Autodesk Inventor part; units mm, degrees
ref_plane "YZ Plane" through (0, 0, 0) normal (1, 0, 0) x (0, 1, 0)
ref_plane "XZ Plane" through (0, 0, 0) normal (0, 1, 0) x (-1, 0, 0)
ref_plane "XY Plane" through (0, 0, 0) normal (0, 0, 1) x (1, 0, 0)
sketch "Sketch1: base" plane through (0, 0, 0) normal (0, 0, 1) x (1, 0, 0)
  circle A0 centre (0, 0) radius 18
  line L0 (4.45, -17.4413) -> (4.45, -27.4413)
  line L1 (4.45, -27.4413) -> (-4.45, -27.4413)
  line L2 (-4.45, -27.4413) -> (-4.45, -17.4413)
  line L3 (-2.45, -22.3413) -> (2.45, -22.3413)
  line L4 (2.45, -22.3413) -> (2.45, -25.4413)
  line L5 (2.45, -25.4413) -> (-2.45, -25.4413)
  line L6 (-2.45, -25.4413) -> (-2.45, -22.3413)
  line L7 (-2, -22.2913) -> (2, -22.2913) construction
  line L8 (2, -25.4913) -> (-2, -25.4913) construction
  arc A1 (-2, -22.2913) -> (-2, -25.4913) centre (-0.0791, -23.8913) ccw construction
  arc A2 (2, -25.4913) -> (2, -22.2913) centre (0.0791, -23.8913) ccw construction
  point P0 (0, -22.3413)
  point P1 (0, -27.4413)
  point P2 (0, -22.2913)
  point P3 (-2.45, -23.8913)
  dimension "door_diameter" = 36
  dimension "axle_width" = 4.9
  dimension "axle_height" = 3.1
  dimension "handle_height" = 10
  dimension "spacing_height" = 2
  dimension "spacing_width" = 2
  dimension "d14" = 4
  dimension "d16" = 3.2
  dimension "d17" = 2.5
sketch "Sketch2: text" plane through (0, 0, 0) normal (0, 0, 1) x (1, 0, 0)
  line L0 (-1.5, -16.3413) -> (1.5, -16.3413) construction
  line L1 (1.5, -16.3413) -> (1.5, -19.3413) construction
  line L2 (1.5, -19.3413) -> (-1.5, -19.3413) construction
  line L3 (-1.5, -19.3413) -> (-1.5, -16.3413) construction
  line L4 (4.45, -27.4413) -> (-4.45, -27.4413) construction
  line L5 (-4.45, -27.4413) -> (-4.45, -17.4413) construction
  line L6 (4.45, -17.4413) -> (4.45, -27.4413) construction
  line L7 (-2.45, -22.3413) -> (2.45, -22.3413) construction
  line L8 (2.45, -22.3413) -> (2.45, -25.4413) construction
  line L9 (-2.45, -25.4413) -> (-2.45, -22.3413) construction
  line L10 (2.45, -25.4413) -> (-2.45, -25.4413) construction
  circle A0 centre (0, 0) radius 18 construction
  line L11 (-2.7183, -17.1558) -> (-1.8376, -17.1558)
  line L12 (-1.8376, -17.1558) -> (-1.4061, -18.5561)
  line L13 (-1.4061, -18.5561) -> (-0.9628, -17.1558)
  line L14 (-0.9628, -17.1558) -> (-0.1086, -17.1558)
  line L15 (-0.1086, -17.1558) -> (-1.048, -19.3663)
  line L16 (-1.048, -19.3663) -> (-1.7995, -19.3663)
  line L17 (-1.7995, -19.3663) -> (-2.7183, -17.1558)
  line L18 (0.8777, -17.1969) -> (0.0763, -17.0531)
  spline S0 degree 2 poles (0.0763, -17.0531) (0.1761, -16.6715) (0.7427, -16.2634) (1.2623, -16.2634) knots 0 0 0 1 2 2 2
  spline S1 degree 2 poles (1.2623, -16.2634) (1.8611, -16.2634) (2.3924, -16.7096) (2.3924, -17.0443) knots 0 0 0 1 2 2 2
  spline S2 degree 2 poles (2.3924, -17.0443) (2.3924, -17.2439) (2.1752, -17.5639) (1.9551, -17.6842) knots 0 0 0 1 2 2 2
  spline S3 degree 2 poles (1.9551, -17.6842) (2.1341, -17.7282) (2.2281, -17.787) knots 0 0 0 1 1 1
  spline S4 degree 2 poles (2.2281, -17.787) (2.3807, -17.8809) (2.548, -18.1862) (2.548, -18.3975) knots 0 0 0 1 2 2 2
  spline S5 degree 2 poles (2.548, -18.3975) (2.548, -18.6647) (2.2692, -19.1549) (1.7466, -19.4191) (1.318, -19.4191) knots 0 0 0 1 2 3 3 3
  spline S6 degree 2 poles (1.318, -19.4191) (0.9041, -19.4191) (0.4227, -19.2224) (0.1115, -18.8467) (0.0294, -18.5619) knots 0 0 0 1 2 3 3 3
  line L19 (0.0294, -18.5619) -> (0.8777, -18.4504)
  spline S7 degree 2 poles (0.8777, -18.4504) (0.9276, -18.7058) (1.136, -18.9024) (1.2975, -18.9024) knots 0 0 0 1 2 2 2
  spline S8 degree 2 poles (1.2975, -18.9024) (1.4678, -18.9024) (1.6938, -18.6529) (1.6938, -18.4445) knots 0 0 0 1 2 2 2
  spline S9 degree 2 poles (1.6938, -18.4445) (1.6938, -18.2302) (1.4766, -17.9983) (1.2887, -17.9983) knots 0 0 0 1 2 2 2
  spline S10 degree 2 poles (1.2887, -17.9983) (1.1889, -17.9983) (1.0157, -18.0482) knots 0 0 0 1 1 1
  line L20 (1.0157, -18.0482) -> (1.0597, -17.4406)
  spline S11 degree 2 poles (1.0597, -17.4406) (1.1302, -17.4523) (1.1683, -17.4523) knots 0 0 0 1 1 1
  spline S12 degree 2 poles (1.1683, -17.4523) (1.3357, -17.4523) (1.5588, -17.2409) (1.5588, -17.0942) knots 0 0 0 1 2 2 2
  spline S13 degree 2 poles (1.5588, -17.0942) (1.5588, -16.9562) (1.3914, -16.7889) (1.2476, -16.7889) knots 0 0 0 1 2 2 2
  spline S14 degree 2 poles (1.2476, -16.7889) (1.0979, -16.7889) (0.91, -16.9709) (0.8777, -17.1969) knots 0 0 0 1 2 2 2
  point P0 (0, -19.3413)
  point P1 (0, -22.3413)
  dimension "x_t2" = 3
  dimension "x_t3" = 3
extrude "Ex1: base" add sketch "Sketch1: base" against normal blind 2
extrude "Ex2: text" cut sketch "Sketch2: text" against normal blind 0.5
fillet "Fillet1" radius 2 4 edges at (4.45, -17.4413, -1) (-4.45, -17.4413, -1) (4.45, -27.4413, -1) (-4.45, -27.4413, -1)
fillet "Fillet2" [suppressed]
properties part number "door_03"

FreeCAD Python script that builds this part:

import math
import FreeCAD as App
import Part
import Sketcher

V = App.Vector
Q = App.Units.Quantity


def edges_at(feature, points):
    """Names of the edges that pass closest to the given points."""
    edges = feature.Shape.Edges
    near = lambda p: min(range(len(edges)), key=lambda i: edges[i].distToShape(Part.Vertex(*p))[0])
    return sorted({f"Edge{near(p) + 1}" for p in points})


def add_polygon(sketch, points):
    """Adds a closed chain of lines whose ends are joined by coincident constraints."""
    first, n = sketch.GeometryCount, len(points)
    for a, b in zip(points, points[1:] + points[:1]):
        sketch.addGeometry(Part.LineSegment(App.Vector(*a, 0), App.Vector(*b, 0)), False)
    for i in range(n):
        sketch.addConstraint(Sketcher.Constraint("Coincident", first + i, 2, first + (i + 1) % n, 1))

doc = App.newDocument("Part")
body = doc.addObject("PartDesign::Body", "Body")

# Sketch on XY plane
sketch1 = body.newObject("Sketcher::SketchObject", "Sketch")
sketch1.AttachmentSupport = (doc.getObject("XY_Plane"), [""])
sketch1.MapMode = "FlatFace"
sketch1.addGeometry(Part.ArcOfCircle(Part.Circle(V(0, 0, 0), V(0, 0, 1), 18), math.radians(-76), math.radians(256)), False)  # 0
sketch1.addGeometry(Part.LineSegment(V(-4.5, -17.4, 0), V(-4.5, -27.4, 0)), False)  # 1
sketch1.addGeometry(Part.LineSegment(V(-4.5, -27.4, 0), V(4.5, -27.4, 0)), False)  # 2
sketch1.addGeometry(Part.LineSegment(V(4.5, -27.4, 0), V(4.5, -17.4, 0)), False)  # 3
add_polygon(sketch1, [(-2.5, -22.3), (2.5, -22.3), (2.5, -25.4), (-2.5, -25.4)])  # lines 4-7
sketch1.addConstraint([
    Sketcher.Constraint("Coincident", 0, 2, 1, 1),
    Sketcher.Constraint("Coincident", 1, 2, 2, 1),
    Sketcher.Constraint("Coincident", 2, 2, 3, 1),
    Sketcher.Constraint("Coincident", 3, 2, 0, 1),
    Sketcher.Constraint("Vertical", 1),
    Sketcher.Constraint("Horizontal", 2),
    Sketcher.Constraint("Vertical", 3),
    Sketcher.Constraint("Horizontal", 4),
    Sketcher.Constraint("Vertical", 5),
    Sketcher.Constraint("Horizontal", 6),
    Sketcher.Constraint("Vertical", 7),
    Sketcher.Constraint("Coincident", 0, 3, -1, 1),
    Sketcher.Constraint("Horizontal", 0, 2, 3, 2),
    Sketcher.Constraint("Radius", 0, 18.0),
    Sketcher.Constraint("DistanceY", 1, 2, 1, 1, 10.0),
    Sketcher.Constraint("DistanceX", 4, 1, 4, 2, 4.9),
    Sketcher.Constraint("DistanceY", 5, 2, 5, 1, 3.1),
    Sketcher.Constraint("DistanceX", 4, 2, 3, 2, 2.0),
    Sketcher.Constraint("DistanceY", 2, 2, 5, 2, 2.0),
    Sketcher.Constraint("DistanceX", 1, 2, 6, 2, 2.0),
])
pad1 = body.newObject("PartDesign::Pad", "Pad")
pad1.Profile = sketch1
pad1.Length = 2
pad1.Reversed = True

# Sketch on XY plane
sketch2 = body.newObject("Sketcher::SketchObject", "Sketch001")
sketch2.AttachmentSupport = (doc.getObject("XY_Plane"), [""])
sketch2.MapMode = "FlatFace"
add_polygon(sketch2, [(-1.8376, -17.1558), (-2.7183, -17.1558), (-1.7995, -19.3663), (-1.048, -19.3663), (-0.1086, -17.1558), (-0.9628, -17.1558), (-1.4061, -18.5561)])  # lines 0-6
sketch2.addGeometry(Part.LineSegment(V(0.0763, -17.0531, 0), V(0.8777, -17.1969, 0)), False)  # 7
sketch2.addGeometry(Part.BSplineCurve([V(1.2476, -16.7889, 0), V(1.0979, -16.7889, 0), V(0.91, -16.9709, 0), V(0.8777, -17.1969, 0)], [3, 1, 3], [0, 1, 2], False, 2, [1, 1, 1, 1], False), False)  # 8
sketch2.addGeometry(Part.BSplineCurve([V(1.5588, -17.0942, 0), V(1.5588, -16.9562, 0), V(1.3914, -16.7889, 0), V(1.2476, -16.7889, 0)], [3, 1, 3], [0, 1, 2], False, 2, [1, 1, 1, 1], False), False)  # 9
sketch2.addGeometry(Part.BSplineCurve([V(1.1683, -17.4523, 0), V(1.3357, -17.4523, 0), V(1.5588, -17.2409, 0), V(1.5588, -17.0942, 0)], [3, 1, 3], [0, 1, 2], False, 2, [1, 1, 1, 1], False), False)  # 10
sketch2.addGeometry(Part.BSplineCurve([V(1.0597, -17.4406, 0), V(1.1302, -17.4523, 0), V(1.1683, -17.4523, 0)], [3, 3], [0, 1], False, 2, [1, 1, 1], False), False)  # 11
sketch2.addGeometry(Part.LineSegment(V(1.0597, -17.4406, 0), V(1.0157, -18.0482, 0)), False)  # 12
sketch2.addGeometry(Part.BSplineCurve([V(1.2887, -17.9983, 0), V(1.1889, -17.9983, 0), V(1.0157, -18.0482, 0)], [3, 3], [0, 1], False, 2, [1, 1, 1], False), False)  # 13
sketch2.addGeometry(Part.BSplineCurve([V(1.6938, -18.4445, 0), V(1.6938, -18.2302, 0), V(1.4766, -17.9983, 0), V(1.2887, -17.9983, 0)], [3, 1, 3], [0, 1, 2], False, 2, [1, 1, 1, 1], False), False)  # 14
sketch2.addGeometry(Part.BSplineCurve([V(1.2975, -18.9024, 0), V(1.4678, -18.9024, 0), V(1.6938, -18.6529, 0), V(1.6938, -18.4445, 0)], [3, 1, 3], [0, 1, 2], False, 2, [1, 1, 1, 1], False), False)  # 15
sketch2.addGeometry(Part.BSplineCurve([V(0.8777, -18.4504, 0), V(0.9276, -18.7058, 0), V(1.136, -18.9024, 0), V(1.2975, -18.9024, 0)], [3, 1, 3], [0, 1, 2], False, 2, [1, 1, 1, 1], False), False)  # 16
sketch2.addGeometry(Part.LineSegment(V(0.8777, -18.4504, 0), V(0.0294, -18.5619, 0)), False)  # 17
sketch2.addGeometry(Part.BSplineCurve([V(1.318, -19.4191, 0), V(0.9041, -19.4191, 0), V(0.4227, -19.2224, 0), V(0.1115, -18.8467, 0), V(0.0294, -18.5619, 0)], [3, 1, 1, 3], [0, 1, 2, 3], False, 2, [1, 1, 1, 1, 1], False), False)  # 18
sketch2.addGeometry(Part.BSplineCurve([V(2.548, -18.3975, 0), V(2.548, -18.6647, 0), V(2.2692, -19.1549, 0), V(1.7466, -19.4191, 0), V(1.318, -19.4191, 0)], [3, 1, 1, 3], [0, 1, 2, 3], False, 2, [1, 1, 1, 1, 1], False), False)  # 19
sketch2.addGeometry(Part.BSplineCurve([V(2.2281, -17.787, 0), V(2.3807, -17.8809, 0), V(2.548, -18.1862, 0), V(2.548, -18.3975, 0)], [3, 1, 3], [0, 1, 2], False, 2, [1, 1, 1, 1], False), False)  # 20
sketch2.addGeometry(Part.BSplineCurve([V(1.9551, -17.6842, 0), V(2.1341, -17.7282, 0), V(2.2281, -17.787, 0)], [3, 3], [0, 1], False, 2, [1, 1, 1], False), False)  # 21
sketch2.addGeometry(Part.BSplineCurve([V(2.3924, -17.0443, 0), V(2.3924, -17.2439, 0), V(2.1752, -17.5639, 0), V(1.9551, -17.6842, 0)], [3, 1, 3], [0, 1, 2], False, 2, [1, 1, 1, 1], False), False)  # 22
sketch2.addGeometry(Part.BSplineCurve([V(1.2623, -16.2634, 0), V(1.8611, -16.2634, 0), V(2.3924, -16.7096, 0), V(2.3924, -17.0443, 0)], [3, 1, 3], [0, 1, 2], False, 2, [1, 1, 1, 1], False), False)  # 23
sketch2.addGeometry(Part.BSplineCurve([V(0.0763, -17.0531, 0), V(0.1761, -16.6715, 0), V(0.7427, -16.2634, 0), V(1.2623, -16.2634, 0)], [3, 1, 3], [0, 1, 2], False, 2, [1, 1, 1, 1], False), False)  # 24
sketch2.addConstraint([
    Sketcher.Constraint("Block", 8),
    Sketcher.Constraint("Block", 9),
    Sketcher.Constraint("Block", 10),
    Sketcher.Constraint("Block", 11),
    Sketcher.Constraint("Block", 13),
    Sketcher.Constraint("Block", 14),
    Sketcher.Constraint("Block", 15),
    Sketcher.Constraint("Block", 16),
    Sketcher.Constraint("Block", 18),
    Sketcher.Constraint("Block", 19),
    Sketcher.Constraint("Block", 20),
    Sketcher.Constraint("Block", 21),
    Sketcher.Constraint("Block", 22),
    Sketcher.Constraint("Block", 23),
    Sketcher.Constraint("Block", 24),
    Sketcher.Constraint("Coincident", 7, 2, 8, 2),
    Sketcher.Constraint("Coincident", 11, 1, 12, 1),
    Sketcher.Constraint("Coincident", 12, 2, 13, 2),
    Sketcher.Constraint("Coincident", 16, 1, 17, 1),
    Sketcher.Constraint("Coincident", 17, 2, 18, 2),
    Sketcher.Constraint("Coincident", 24, 1, 7, 1),
    Sketcher.Constraint("Horizontal", 0),
    Sketcher.Constraint("Horizontal", 2),
    Sketcher.Constraint("Horizontal", 4),
    Sketcher.Constraint("Horizontal", 0, 2, 3, 2),
    Sketcher.Constraint("Angle", 1, Q("-67.4297 deg")),
    Sketcher.Constraint("DistanceX", 0, 2, 0, 1, 0.8807),
    Sketcher.Constraint("DistanceX", 2, 1, 2, 2, 0.7515),
    Sketcher.Constraint("DistanceX", 4, 2, 4, 1, 0.8542),
    Sketcher.Constraint("DistanceX", 2, 2, -1, 1, 1.048),
    Sketcher.Constraint("DistanceX", 5, 2, -1, 1, 1.406),
    Sketcher.Constraint("DistanceY", 5, 2, -1, 1, 18.556),
    Sketcher.Constraint("DistanceX", 1, 2, 3, 2, 1.691),
    Sketcher.Constraint("DistanceX", 6, 2, 3, 2, 1.729),
    Sketcher.Constraint("DistanceY", 7, 2, 3, 2, 0.041),
])
pocket1 = body.newObject("PartDesign::Pocket", "Pocket")
pocket1.Profile = sketch2
pocket1.Length = 0.5
doc.recompute()

fillet = body.newObject("PartDesign::Fillet", "Fillet")
fillet.Base = (pocket1, edges_at(pocket1, [
    (4.45, -17.441, -1),
    (-4.45, -17.441, -1),
    (4.45, -27.441, -1),
    (-4.45, -27.441, -1),
]))
fillet.Radius = 2

doc.recompute()
